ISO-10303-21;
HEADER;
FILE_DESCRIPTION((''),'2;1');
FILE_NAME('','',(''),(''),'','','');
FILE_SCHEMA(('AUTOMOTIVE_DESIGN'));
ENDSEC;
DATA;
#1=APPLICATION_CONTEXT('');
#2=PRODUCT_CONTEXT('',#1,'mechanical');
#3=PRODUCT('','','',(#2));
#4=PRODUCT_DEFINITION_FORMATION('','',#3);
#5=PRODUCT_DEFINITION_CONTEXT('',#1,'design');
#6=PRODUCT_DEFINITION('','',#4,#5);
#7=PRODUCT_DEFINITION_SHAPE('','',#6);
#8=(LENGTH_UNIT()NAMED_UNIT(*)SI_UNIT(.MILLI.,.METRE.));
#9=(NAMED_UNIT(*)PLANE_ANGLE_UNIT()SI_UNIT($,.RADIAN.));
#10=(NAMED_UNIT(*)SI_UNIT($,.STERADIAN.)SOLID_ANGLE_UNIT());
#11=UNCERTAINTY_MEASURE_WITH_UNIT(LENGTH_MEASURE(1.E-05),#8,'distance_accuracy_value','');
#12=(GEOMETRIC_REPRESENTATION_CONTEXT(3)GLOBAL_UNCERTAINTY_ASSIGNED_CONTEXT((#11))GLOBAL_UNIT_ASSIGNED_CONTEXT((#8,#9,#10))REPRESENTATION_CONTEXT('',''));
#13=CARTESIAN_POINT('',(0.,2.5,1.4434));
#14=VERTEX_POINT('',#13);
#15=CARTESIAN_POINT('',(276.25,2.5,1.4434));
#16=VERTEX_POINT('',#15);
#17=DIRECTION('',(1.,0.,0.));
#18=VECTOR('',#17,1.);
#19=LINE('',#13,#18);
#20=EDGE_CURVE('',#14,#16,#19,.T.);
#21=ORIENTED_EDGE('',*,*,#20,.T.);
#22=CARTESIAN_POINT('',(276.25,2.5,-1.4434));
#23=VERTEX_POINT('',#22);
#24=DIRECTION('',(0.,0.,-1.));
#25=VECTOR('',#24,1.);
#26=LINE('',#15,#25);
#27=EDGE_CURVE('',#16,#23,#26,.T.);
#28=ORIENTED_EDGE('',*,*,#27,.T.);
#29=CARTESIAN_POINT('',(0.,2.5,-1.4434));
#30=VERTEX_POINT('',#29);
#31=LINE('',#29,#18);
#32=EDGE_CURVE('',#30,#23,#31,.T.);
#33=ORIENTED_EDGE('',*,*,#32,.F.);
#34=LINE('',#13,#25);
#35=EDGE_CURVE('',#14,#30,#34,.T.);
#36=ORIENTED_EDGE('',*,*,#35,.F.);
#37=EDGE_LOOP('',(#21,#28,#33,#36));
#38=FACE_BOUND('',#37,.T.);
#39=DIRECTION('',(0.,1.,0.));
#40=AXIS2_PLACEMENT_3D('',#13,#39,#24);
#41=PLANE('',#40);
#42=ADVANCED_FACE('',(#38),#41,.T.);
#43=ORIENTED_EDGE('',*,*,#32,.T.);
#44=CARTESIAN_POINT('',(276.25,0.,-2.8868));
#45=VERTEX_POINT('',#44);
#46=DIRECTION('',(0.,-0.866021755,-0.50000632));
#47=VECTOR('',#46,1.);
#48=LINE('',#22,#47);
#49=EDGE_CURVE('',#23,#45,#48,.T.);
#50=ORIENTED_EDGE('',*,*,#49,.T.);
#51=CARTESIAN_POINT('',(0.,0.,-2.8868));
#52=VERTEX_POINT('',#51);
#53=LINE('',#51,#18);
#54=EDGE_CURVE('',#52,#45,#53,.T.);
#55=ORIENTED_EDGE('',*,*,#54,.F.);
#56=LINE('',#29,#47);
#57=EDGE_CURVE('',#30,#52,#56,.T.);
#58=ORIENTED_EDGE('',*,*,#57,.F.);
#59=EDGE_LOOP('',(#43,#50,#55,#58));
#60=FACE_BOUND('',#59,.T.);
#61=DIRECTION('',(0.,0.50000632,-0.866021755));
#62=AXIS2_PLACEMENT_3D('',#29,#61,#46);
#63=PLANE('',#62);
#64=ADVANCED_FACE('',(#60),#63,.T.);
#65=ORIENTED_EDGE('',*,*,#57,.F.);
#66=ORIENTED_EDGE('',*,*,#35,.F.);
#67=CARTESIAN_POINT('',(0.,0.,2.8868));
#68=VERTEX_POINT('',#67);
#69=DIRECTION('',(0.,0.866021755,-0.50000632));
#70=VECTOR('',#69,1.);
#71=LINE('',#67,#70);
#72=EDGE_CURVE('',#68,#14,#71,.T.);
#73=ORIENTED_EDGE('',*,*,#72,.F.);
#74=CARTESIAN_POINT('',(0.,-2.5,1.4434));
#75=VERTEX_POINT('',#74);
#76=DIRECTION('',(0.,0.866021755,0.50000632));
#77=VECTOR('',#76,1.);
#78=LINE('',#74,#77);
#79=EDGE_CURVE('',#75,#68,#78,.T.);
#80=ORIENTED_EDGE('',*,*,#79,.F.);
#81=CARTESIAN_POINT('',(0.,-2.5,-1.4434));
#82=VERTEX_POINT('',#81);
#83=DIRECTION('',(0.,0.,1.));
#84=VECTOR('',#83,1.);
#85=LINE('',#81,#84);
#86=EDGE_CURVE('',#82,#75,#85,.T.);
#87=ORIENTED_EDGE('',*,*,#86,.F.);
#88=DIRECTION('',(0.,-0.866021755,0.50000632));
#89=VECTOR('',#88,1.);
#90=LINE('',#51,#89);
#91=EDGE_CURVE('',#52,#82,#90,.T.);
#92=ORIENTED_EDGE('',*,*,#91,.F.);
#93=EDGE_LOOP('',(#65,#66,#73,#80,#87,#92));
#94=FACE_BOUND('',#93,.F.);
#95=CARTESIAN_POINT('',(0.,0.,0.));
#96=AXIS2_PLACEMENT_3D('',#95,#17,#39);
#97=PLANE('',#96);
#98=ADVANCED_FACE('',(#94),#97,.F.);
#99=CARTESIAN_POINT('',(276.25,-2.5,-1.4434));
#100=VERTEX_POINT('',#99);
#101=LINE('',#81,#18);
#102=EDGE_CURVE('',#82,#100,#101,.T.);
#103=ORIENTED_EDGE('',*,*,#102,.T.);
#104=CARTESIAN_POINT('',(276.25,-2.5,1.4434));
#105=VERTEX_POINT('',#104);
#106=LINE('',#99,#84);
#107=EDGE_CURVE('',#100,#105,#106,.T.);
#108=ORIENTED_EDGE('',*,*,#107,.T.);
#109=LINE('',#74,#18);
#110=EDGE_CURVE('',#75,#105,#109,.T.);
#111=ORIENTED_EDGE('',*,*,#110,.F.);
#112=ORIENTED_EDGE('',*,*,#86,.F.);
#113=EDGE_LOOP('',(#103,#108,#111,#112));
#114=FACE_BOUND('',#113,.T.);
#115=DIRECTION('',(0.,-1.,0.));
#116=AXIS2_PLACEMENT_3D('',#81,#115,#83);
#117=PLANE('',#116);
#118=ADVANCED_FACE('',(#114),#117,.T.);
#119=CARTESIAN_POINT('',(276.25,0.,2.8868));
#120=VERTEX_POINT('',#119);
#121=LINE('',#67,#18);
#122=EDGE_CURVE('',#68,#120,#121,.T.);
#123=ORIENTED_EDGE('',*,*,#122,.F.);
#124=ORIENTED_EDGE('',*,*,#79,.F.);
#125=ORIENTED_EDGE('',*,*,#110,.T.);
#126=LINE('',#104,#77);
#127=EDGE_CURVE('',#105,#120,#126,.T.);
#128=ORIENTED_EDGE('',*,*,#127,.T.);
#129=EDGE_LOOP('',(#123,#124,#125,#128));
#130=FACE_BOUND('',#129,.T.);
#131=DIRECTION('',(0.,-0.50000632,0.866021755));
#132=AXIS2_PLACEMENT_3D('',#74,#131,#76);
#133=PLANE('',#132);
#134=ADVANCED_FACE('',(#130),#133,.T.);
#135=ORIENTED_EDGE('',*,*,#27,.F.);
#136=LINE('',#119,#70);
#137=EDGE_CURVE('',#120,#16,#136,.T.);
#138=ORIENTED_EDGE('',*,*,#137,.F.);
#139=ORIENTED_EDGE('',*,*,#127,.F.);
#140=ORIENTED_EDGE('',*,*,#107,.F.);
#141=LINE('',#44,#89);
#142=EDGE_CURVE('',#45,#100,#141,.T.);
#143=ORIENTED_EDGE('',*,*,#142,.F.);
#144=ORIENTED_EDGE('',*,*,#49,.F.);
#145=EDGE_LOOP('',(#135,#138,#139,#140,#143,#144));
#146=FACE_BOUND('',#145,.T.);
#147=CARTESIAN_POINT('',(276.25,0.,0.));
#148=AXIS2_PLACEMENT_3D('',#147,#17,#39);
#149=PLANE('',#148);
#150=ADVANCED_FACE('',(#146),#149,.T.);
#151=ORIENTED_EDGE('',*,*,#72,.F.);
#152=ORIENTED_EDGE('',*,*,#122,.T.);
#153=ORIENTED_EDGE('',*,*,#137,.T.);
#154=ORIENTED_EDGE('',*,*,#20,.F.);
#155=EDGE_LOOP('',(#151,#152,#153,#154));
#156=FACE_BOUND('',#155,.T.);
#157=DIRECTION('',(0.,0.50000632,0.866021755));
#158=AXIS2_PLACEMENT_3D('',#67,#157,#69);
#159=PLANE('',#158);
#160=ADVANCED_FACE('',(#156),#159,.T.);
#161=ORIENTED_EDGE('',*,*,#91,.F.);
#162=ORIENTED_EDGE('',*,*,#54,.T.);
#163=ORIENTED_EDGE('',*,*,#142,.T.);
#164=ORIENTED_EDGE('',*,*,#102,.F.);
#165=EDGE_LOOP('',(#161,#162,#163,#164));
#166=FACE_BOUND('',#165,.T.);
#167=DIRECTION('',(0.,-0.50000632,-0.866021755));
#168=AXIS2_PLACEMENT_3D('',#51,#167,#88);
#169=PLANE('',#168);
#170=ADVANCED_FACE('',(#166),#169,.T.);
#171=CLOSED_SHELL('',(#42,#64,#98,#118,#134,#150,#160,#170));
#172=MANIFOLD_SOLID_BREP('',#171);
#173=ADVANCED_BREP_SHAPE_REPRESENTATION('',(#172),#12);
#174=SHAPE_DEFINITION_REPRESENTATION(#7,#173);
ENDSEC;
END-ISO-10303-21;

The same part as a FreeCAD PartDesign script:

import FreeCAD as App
import Part
import Sketcher
from FreeCAD import Vector
Q = App.Units.Quantity


def add_polygon(sketch, points):
    """Adds a closed chain of lines whose ends are joined by coincident constraints."""
    first, n = sketch.GeometryCount, len(points)
    for a, b in zip(points, points[1:] + points[:1]):
        sketch.addGeometry(Part.LineSegment(App.Vector(*a, 0), App.Vector(*b, 0)), False)
    for i in range(n):
        sketch.addConstraint(Sketcher.Constraint("Coincident", first + i, 2, first + (i + 1) % n, 1))

doc = App.newDocument("Part")
body = doc.addObject("PartDesign::Body", "Body")

# Sketch on YZ plane
sketch1 = doc.addObject("Sketcher::SketchObject", "Sketch")
body.addObject(sketch1)
sketch1.AttachmentSupport = (doc.YZ_Plane, [""])
sketch1.MapMode = "FlatFace"
add_polygon(sketch1, [(0, -2.9), (2.5, -1.4), (2.5, 1.4), (0, 2.9), (-2.5, 1.4), (-2.5, -1.4)])  # lines 0-5
sketch1.addConstraint([
    Sketcher.Constraint("Vertical", 1),
    Sketcher.Constraint("Vertical", 4),
    Sketcher.Constraint("Symmetric", 0, 2, 3, 2, -1, 1),
    Sketcher.Constraint("Symmetric", 2, 2, 5, 2, -1, 1),
    Sketcher.Constraint("PointOnObject", 2, 2, -2),
    Sketcher.Constraint("Parallel", 2, 5),
    Sketcher.Constraint("Horizontal", 1, 2, 3, 2),
    Sketcher.Constraint("DistanceX", 3, 2, 1, 2, 5.0),
    Sketcher.Constraint("Angle", 0, Q("30.0004 deg")),
    Sketcher.Constraint("DistanceY", 1, 1, 1, 2, 2.8868),
])
pad1 = doc.addObject("PartDesign::Pad", "Pad")
body.addObject(pad1)
pad1.Profile = sketch1
pad1.Length = 276.25

doc.recompute()
